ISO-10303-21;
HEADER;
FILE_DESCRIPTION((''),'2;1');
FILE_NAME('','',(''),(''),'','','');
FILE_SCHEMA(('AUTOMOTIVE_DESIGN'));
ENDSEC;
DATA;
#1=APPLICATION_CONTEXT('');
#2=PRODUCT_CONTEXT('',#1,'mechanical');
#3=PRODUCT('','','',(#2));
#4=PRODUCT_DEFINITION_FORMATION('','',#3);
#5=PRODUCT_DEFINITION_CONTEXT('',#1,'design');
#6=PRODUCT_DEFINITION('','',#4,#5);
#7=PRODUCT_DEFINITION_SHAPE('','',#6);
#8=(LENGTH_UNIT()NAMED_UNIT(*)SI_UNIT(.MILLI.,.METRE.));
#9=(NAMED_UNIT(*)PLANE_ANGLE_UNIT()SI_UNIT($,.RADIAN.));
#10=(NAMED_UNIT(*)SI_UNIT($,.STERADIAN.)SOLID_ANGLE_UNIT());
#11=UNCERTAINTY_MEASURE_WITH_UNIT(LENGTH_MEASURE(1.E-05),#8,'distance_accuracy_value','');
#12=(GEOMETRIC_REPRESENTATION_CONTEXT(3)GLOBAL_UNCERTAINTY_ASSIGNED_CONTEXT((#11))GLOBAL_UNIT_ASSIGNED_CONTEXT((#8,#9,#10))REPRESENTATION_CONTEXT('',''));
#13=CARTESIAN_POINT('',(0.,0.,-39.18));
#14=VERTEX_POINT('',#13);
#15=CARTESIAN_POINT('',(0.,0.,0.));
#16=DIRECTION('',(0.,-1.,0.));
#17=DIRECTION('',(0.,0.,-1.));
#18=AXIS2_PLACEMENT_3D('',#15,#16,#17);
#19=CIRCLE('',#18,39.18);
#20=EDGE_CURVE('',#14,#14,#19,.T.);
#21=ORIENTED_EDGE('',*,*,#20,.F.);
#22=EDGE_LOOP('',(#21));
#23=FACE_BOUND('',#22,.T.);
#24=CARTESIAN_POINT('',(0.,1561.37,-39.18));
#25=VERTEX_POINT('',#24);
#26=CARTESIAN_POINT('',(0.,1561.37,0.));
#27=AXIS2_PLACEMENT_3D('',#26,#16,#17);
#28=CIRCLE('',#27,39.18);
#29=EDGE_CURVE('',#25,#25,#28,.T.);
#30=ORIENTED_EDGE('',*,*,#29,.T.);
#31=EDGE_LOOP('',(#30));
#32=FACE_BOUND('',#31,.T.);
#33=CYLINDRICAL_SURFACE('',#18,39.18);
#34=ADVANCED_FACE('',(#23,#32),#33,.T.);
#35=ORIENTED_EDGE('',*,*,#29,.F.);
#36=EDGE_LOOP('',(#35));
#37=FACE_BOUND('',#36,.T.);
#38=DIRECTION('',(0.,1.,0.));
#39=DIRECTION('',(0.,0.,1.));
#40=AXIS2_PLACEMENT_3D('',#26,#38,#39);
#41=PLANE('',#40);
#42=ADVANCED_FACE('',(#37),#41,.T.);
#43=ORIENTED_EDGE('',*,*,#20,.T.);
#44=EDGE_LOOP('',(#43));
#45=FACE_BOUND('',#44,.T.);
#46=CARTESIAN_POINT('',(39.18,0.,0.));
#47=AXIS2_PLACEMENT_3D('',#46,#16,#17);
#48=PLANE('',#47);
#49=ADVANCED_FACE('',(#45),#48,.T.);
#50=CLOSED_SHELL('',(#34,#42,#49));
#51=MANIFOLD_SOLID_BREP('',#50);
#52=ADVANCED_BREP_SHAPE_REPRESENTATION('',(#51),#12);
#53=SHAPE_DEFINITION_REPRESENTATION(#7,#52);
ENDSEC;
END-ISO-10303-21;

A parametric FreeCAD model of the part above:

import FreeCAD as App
import Part
import Sketcher
Q = App.Units.Quantity


def add_polygon(sketch, points):
    """Adds a closed chain of lines whose ends are joined by coincident constraints."""
    first, n = sketch.GeometryCount, len(points)
    for a, b in zip(points, points[1:] + points[:1]):
        sketch.addGeometry(Part.LineSegment(App.Vector(*a, 0), App.Vector(*b, 0)), False)
    for i in range(n):
        sketch.addConstraint(Sketcher.Constraint("Coincident", first + i, 2, first + (i + 1) % n, 1))

doc = App.newDocument("Part")
body = doc.addObject("PartDesign::Body", "Body")

sketch1 = doc.addObject("Sketcher::SketchObject", "Sketch")
body.addObject(sketch1)
sketch1.AttachmentSupport = (doc.XY_Plane, [""])
sketch1.MapMode = "FlatFace"
add_polygon(sketch1, [(0, 1561.37), (0, 0), (39.18, 0), (39.18, 1561.37)])
sketch1.addConstraint(Sketcher.Constraint("Vertical", 0))
sketch1.addConstraint(Sketcher.Constraint("Horizontal", 1))
sketch1.addConstraint(Sketcher.Constraint("Vertical", 2))
sketch1.addConstraint(Sketcher.Constraint("Horizontal", 3))
sketch1.addConstraint(Sketcher.Constraint("Coincident", 0, 2, -1, 1))
sketch1.addConstraint(Sketcher.Constraint("DistanceX", 1, 1, 1, 2, Q("39.18 mm")))
sketch1.addConstraint(Sketcher.Constraint("DistanceY", 0, 2, 0, 1, Q("1561.37 mm")))
revolution = doc.addObject("PartDesign::Revolution", "Revolution")
body.addObject(revolution)
revolution.Profile = sketch1
revolution.ReferenceAxis = (sketch1, ["V_Axis"])
revolution.Angle = 360

doc.recompute()
